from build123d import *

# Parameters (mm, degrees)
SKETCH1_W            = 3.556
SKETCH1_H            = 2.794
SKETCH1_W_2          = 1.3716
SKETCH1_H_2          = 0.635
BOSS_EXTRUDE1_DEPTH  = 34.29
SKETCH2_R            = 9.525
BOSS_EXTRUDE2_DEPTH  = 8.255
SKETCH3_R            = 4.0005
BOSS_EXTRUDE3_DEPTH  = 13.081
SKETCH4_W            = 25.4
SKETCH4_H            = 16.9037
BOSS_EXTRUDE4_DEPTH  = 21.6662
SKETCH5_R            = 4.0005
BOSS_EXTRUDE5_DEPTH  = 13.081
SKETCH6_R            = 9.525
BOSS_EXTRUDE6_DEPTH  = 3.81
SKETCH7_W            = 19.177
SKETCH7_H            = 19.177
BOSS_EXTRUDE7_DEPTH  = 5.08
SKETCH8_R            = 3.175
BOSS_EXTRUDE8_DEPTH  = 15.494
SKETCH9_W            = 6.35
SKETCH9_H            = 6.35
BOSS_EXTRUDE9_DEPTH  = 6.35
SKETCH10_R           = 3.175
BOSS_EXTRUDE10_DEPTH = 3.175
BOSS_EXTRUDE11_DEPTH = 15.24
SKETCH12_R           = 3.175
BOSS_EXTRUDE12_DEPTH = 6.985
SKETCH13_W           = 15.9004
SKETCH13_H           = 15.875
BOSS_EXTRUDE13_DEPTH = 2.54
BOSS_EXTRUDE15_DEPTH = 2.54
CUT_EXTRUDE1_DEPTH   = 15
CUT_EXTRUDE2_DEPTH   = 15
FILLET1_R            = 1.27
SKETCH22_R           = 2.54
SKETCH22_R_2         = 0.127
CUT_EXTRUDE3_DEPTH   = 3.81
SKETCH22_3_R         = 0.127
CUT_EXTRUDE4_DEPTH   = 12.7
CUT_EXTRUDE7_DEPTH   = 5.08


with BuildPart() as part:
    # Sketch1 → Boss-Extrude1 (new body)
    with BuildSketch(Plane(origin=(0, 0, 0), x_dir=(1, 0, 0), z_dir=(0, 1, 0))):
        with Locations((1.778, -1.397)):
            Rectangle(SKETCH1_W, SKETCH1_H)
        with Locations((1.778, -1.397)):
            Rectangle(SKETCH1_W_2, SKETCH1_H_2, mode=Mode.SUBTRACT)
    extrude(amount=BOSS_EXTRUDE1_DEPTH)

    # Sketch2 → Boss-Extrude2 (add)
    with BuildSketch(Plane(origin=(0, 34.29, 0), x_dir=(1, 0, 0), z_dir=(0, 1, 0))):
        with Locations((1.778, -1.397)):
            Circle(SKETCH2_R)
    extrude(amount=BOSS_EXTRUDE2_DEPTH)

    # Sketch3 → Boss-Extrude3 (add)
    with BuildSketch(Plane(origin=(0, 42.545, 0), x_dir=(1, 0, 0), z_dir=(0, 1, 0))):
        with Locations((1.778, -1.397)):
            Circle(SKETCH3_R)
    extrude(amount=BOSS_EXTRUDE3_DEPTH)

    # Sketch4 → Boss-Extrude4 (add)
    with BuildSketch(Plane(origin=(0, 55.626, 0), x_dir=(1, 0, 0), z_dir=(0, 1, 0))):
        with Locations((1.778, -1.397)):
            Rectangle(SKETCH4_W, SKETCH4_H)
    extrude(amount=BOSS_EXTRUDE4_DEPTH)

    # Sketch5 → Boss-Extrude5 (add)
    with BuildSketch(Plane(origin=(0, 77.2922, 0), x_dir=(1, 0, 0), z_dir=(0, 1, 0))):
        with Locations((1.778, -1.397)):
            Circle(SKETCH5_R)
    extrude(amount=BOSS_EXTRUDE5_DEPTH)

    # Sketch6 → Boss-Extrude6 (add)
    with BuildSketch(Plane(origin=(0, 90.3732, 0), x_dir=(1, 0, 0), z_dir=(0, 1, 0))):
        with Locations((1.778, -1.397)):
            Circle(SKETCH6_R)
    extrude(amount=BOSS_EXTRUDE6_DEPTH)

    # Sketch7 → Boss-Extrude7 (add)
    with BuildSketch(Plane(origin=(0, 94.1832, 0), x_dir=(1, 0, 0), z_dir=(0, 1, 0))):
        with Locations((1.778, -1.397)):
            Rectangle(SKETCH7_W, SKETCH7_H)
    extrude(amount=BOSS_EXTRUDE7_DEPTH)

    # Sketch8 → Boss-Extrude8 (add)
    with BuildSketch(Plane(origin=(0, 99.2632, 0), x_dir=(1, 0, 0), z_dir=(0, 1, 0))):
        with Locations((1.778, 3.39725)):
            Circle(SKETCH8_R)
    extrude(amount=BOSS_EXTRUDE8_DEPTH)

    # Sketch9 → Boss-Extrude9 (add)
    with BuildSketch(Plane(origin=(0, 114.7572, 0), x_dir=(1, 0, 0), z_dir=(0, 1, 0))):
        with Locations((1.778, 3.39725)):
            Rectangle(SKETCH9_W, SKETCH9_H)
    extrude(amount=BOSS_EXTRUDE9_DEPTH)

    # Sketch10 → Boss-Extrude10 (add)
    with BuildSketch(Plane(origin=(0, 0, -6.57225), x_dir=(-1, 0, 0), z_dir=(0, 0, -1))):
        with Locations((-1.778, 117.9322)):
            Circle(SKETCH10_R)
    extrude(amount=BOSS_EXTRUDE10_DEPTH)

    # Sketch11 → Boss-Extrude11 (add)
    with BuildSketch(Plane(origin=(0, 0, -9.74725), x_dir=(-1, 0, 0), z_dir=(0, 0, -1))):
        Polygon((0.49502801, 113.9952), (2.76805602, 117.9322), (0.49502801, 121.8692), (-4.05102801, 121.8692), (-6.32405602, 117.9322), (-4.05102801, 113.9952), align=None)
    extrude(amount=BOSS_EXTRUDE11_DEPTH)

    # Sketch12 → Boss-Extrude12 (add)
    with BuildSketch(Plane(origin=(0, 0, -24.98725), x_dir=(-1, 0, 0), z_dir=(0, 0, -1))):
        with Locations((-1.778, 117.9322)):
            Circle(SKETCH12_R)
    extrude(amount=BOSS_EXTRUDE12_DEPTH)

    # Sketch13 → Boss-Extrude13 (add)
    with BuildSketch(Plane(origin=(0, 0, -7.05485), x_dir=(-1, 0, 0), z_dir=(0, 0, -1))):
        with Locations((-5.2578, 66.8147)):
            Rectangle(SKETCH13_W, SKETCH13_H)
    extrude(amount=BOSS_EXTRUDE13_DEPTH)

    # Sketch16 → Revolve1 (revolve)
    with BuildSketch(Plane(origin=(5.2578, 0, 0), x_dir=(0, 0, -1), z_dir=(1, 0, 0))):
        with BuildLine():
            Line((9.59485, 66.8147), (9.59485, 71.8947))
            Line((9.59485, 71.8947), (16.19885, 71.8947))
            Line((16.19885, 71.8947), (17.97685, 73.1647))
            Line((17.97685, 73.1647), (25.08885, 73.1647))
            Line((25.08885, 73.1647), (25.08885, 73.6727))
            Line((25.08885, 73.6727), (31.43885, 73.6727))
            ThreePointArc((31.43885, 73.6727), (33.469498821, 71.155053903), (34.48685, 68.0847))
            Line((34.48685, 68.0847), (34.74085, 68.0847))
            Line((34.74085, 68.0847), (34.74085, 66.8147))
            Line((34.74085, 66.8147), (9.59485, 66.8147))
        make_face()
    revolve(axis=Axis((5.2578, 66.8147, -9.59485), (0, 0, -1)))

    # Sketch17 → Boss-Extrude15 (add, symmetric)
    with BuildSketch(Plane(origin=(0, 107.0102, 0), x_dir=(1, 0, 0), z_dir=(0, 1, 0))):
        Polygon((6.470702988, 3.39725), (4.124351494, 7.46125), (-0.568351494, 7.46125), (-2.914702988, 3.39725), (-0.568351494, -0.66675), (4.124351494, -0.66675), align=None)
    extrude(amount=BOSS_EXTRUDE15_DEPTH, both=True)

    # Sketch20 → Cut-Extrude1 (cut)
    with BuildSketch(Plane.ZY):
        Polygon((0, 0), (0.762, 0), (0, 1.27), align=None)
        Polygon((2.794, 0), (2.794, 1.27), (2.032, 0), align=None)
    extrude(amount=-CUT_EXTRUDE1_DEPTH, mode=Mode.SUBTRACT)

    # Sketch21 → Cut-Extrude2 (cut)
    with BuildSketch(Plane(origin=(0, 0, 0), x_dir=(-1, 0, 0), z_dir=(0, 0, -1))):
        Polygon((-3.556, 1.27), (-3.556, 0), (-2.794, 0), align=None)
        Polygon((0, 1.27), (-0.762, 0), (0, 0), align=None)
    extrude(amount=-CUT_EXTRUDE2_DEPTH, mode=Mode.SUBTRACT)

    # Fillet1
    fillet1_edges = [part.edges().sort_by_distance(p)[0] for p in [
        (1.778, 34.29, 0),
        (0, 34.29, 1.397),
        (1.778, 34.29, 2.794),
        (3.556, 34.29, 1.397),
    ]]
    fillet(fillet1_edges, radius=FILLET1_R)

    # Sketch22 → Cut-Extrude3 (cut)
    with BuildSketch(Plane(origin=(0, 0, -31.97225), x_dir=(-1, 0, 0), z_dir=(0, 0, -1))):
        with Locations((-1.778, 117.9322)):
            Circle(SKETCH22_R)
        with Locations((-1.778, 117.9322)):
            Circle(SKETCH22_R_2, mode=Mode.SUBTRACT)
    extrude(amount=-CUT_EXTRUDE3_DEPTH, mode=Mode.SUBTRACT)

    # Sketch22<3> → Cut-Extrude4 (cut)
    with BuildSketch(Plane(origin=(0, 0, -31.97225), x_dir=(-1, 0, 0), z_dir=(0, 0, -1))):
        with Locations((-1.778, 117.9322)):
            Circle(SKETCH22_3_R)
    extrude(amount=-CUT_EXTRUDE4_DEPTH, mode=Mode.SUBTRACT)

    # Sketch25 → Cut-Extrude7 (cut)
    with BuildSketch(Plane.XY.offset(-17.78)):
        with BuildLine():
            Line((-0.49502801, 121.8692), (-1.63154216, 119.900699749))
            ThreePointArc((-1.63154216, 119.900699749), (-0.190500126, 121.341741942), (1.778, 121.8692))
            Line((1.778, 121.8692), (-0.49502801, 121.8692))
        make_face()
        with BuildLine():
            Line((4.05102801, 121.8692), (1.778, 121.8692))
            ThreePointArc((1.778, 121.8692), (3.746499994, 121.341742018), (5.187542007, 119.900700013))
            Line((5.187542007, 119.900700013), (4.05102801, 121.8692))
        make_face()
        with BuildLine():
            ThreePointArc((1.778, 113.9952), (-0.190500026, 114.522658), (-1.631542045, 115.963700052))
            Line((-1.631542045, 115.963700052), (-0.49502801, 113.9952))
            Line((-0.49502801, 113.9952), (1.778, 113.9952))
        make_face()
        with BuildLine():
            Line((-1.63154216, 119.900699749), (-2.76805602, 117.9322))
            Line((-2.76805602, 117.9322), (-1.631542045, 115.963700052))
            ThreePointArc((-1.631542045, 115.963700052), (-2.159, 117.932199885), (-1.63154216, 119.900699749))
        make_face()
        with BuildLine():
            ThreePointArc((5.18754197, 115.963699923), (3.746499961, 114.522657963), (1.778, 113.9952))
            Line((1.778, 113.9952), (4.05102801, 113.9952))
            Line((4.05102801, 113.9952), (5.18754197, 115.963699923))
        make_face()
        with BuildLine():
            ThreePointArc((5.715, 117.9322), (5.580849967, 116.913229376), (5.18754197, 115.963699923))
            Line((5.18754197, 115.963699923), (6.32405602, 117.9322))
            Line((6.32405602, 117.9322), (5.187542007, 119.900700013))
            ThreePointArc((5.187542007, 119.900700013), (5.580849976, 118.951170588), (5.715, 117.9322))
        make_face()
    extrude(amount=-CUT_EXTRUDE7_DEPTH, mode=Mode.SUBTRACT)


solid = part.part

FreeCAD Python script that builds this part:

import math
import FreeCAD as App
import Part
import Sketcher
Q = App.Units.Quantity


def edges_at(feature, points):
    """Names of the edges that pass closest to the given points."""
    edges = feature.Shape.Edges
    near = lambda p: min(range(len(edges)), key=lambda i: edges[i].distToShape(Part.Vertex(*p))[0])
    return sorted({f"Edge{near(p) + 1}" for p in points})

doc = App.newDocument("Part")
body = doc.addObject("PartDesign::Body", "Body")

sketch1 = body.newObject("Sketcher::SketchObject", "Sketch")
sketch1.AttachmentSupport = (doc.getObject("XZ_Plane"), [""])
sketch1.MapMode = "FlatFace"
sketch1.addGeometry(Part.LineSegment(App.Vector(0, 0, 0), App.Vector(0, 2.794, 0)), False)
sketch1.addGeometry(Part.LineSegment(App.Vector(0, 2.794, 0), App.Vector(3.556, 2.794, 0)), False)
sketch1.addGeometry(Part.LineSegment(App.Vector(3.556, 2.794, 0), App.Vector(3.556, 0, 0)), False)
sketch1.addGeometry(Part.LineSegment(App.Vector(3.556, 0, 0), App.Vector(0, 0, 0)), False)
sketch1.addGeometry(Part.LineSegment(App.Vector(2.4638, 1.7145, 0), App.Vector(1.0922, 1.7145, 0)), False)
sketch1.addGeometry(Part.LineSegment(App.Vector(1.0922, 1.7145, 0), App.Vector(1.0922, 1.0795, 0)), False)
sketch1.addGeometry(Part.LineSegment(App.Vector(1.0922, 1.0795, 0), App.Vector(2.4638, 1.0795, 0)), False)
sketch1.addGeometry(Part.LineSegment(App.Vector(2.4638, 1.0795, 0), App.Vector(2.4638, 1.7145, 0)), False)
sketch1.addConstraint(Sketcher.Constraint("Coincident", 0, 2, 1, 1))
sketch1.addConstraint(Sketcher.Constraint("Coincident", 1, 2, 2, 1))
sketch1.addConstraint(Sketcher.Constraint("Coincident", 2, 2, 3, 1))
sketch1.addConstraint(Sketcher.Constraint("Coincident", 3, 2, 0, 1))
sketch1.addConstraint(Sketcher.Constraint("Coincident", 4, 2, 5, 1))
sketch1.addConstraint(Sketcher.Constraint("Coincident", 5, 2, 6, 1))
sketch1.addConstraint(Sketcher.Constraint("Coincident", 6, 2, 7, 1))
sketch1.addConstraint(Sketcher.Constraint("Coincident", 7, 2, 4, 1))
sketch1.addConstraint(Sketcher.Constraint("Vertical", 0))
sketch1.addConstraint(Sketcher.Constraint("Horizontal", 1))
sketch1.addConstraint(Sketcher.Constraint("Vertical", 2))
sketch1.addConstraint(Sketcher.Constraint("Horizontal", 3))
sketch1.addConstraint(Sketcher.Constraint("Horizontal", 4))
sketch1.addConstraint(Sketcher.Constraint("Vertical", 5))
sketch1.addConstraint(Sketcher.Constraint("Horizontal", 6))
sketch1.addConstraint(Sketcher.Constraint("Vertical", 7))
sketch1.addConstraint(Sketcher.Constraint("Coincident", 3, 2, -1, 1))
sketch1.addConstraint(Sketcher.Constraint("DistanceX", 1, 1, 1, 2, Q("0.14 in")))
sketch1.addConstraint(Sketcher.Constraint("DistanceY", 0, 1, 0, 2, Q("0.11 in")))
sketch1.addConstraint(Sketcher.Constraint("DistanceX", 4, 2, 4, 1, Q("0.054 in")))
sketch1.addConstraint(Sketcher.Constraint("DistanceY", 5, 2, 5, 1, Q("0.025 in")))
sketch1.addConstraint(Sketcher.Constraint("DistanceX", -1, 1, 4, 2, Q("0.043 in")))
sketch1.addConstraint(Sketcher.Constraint("DistanceY", -1, 1, 4, 2, Q("0.0675 in")))
pad1 = body.newObject("PartDesign::Pad", "Pad")
pad1.Profile = sketch1
pad1.Length = Q("1.35 in")
pad1.Reversed = True

sketch2 = body.newObject("Sketcher::SketchObject", "Sketch001")
sketch2.AttachmentSupport = (doc.getObject("XZ_Plane"), [""])
sketch2.MapMode = "FlatFace"
sketch2.AttachmentOffset = App.Placement(App.Vector(0, 0, -1.35 * 25.4), App.Rotation())
sketch2.addGeometry(Part.Circle(App.Vector(1.778, 1.397, 0), App.Vector(0, 0, 1), 9.525), False)
sketch2.addConstraint(Sketcher.Constraint("Diameter", 0, Q("0.75 in")))
sketch2.addConstraint(Sketcher.Constraint("DistanceX", -1, 1, 0, 3, Q("0.07 in")))
sketch2.addConstraint(Sketcher.Constraint("DistanceY", -1, 1, 0, 3, Q("0.055 in")))
pad2 = body.newObject("PartDesign::Pad", "Pad001")
pad2.Profile = sketch2
pad2.Length = Q("0.325 in")
pad2.Reversed = True

sketch3 = body.newObject("Sketcher::SketchObject", "Sketch002")
sketch3.AttachmentSupport = (doc.getObject("XZ_Plane"), [""])
sketch3.MapMode = "FlatFace"
sketch3.AttachmentOffset = App.Placement(App.Vector(0, 0, -1.675 * 25.4), App.Rotation())
sketch3.addGeometry(Part.Circle(App.Vector(1.778, 1.397, 0), App.Vector(0, 0, 1), 4.0005), False)
sketch3.addConstraint(Sketcher.Constraint("Diameter", 0, Q("0.315 in")))
sketch3.addConstraint(Sketcher.Constraint("DistanceX", -1, 1, 0, 3, Q("0.07 in")))
sketch3.addConstraint(Sketcher.Constraint("DistanceY", -1, 1, 0, 3, Q("0.055 in")))
pad3 = body.newObject("PartDesign::Pad", "Pad002")
pad3.Profile = sketch3
pad3.Length = Q("0.515 in")
pad3.Reversed = True

sketch4 = body.newObject("Sketcher::SketchObject", "Sketch003")
sketch4.AttachmentSupport = (doc.getObject("XZ_Plane"), [""])
sketch4.MapMode = "FlatFace"
sketch4.AttachmentOffset = App.Placement(App.Vector(0, 0, -2.19 * 25.4), App.Rotation())
sketch4.addGeometry(Part.LineSegment(App.Vector(-10.922, -7.05485, 0), App.Vector(-10.922, 9.84885, 0)), False)
sketch4.addGeometry(Part.LineSegment(App.Vector(-10.922, 9.84885, 0), App.Vector(14.478, 9.84885, 0)), False)
sketch4.addGeometry(Part.LineSegment(App.Vector(14.478, 9.84885, 0), App.Vector(14.478, -7.05485, 0)), False)
sketch4.addGeometry(Part.LineSegment(App.Vector(14.478, -7.05485, 0), App.Vector(-10.922, -7.05485, 0)), False)
sketch4.addConstraint(Sketcher.Constraint("Coincident", 0, 2, 1, 1))
sketch4.addConstraint(Sketcher.Constraint("Coincident", 1, 2, 2, 1))
sketch4.addConstraint(Sketcher.Constraint("Coincident", 2, 2, 3, 1))
sketch4.addConstraint(Sketcher.Constraint("Coincident", 3, 2, 0, 1))
sketch4.addConstraint(Sketcher.Constraint("Vertical", 0))
sketch4.addConstraint(Sketcher.Constraint("Horizontal", 1))
sketch4.addConstraint(Sketcher.Constraint("Vertical", 2))
sketch4.addConstraint(Sketcher.Constraint("Horizontal", 3))
sketch4.addConstraint(Sketcher.Constraint("DistanceX", 1, 1, 1, 2, Q("1 in")))
sketch4.addConstraint(Sketcher.Constraint("DistanceX", 0, 2, -1, 1, Q("0.43 in")))
sketch4.addConstraint(Sketcher.Constraint("DistanceY", 0, 1, 0, 2, Q("0.6655 in")))
sketch4.addConstraint(Sketcher.Constraint("DistanceY", -1, 1, 0, 2, Q("9.84885 mm")))
pad4 = body.newObject("PartDesign::Pad", "Pad003")
pad4.Profile = sketch4
pad4.Length = Q("0.853 in")
pad4.Reversed = True

sketch5 = body.newObject("Sketcher::SketchObject", "Sketch004")
sketch5.AttachmentSupport = (doc.getObject("XZ_Plane"), [""])
sketch5.MapMode = "FlatFace"
sketch5.AttachmentOffset = App.Placement(App.Vector(0, 0, -3.043 * 25.4), App.Rotation())
sketch5.addGeometry(Part.Circle(App.Vector(1.778, 1.397, 0), App.Vector(0, 0, 1), 4.0005), False)
sketch5.addConstraint(Sketcher.Constraint("Diameter", 0, Q("0.315 in")))
sketch5.addConstraint(Sketcher.Constraint("DistanceX", -1, 1, 0, 3, Q("0.07 in")))
sketch5.addConstraint(Sketcher.Constraint("DistanceY", -1, 1, 0, 3, Q("0.055 in")))
pad5 = body.newObject("PartDesign::Pad", "Pad004")
pad5.Profile = sketch5
pad5.Length = Q("0.515 in")
pad5.Reversed = True

sketch6 = body.newObject("Sketcher::SketchObject", "Sketch005")
sketch6.AttachmentSupport = (doc.getObject("XZ_Plane"), [""])
sketch6.MapMode = "FlatFace"
sketch6.AttachmentOffset = App.Placement(App.Vector(0, 0, -3.558 * 25.4), App.Rotation())
sketch6.addGeometry(Part.Circle(App.Vector(1.778, 1.397, 0), App.Vector(0, 0, 1), 9.525), False)
sketch6.addConstraint(Sketcher.Constraint("Diameter", 0, Q("0.75 in")))
sketch6.addConstraint(Sketcher.Constraint("DistanceX", -1, 1, 0, 3, Q("0.07 in")))
sketch6.addConstraint(Sketcher.Constraint("DistanceY", -1, 1, 0, 3, Q("0.055 in")))
pad6 = body.newObject("PartDesign::Pad", "Pad005")
pad6.Profile = sketch6
pad6.Length = Q("0.15 in")
pad6.Reversed = True

sketch7 = body.newObject("Sketcher::SketchObject", "Sketch006")
sketch7.AttachmentSupport = (doc.getObject("XZ_Plane"), [""])
sketch7.MapMode = "FlatFace"
sketch7.AttachmentOffset = App.Placement(App.Vector(0, 0, -3.708 * 25.4), App.Rotation())
sketch7.addGeometry(Part.LineSegment(App.Vector(-7.8105, -8.1915, 0), App.Vector(-7.8105, 10.9855, 0)), False)
sketch7.addGeometry(Part.LineSegment(App.Vector(-7.8105, 10.9855, 0), App.Vector(11.3665, 10.9855, 0)), False)
sketch7.addGeometry(Part.LineSegment(App.Vector(11.3665, 10.9855, 0), App.Vector(11.3665, -8.1915, 0)), False)
sketch7.addGeometry(Part.LineSegment(App.Vector(11.3665, -8.1915, 0), App.Vector(-7.8105, -8.1915, 0)), False)
sketch7.addConstraint(Sketcher.Constraint("Coincident", 0, 2, 1, 1))
sketch7.addConstraint(Sketcher.Constraint("Coincident", 1, 2, 2, 1))
sketch7.addConstraint(Sketcher.Constraint("Coincident", 2, 2, 3, 1))
sketch7.addConstraint(Sketcher.Constraint("Coincident", 3, 2, 0, 1))
sketch7.addConstraint(Sketcher.Constraint("Vertical", 0))
sketch7.addConstraint(Sketcher.Constraint("Horizontal", 1))
sketch7.addConstraint(Sketcher.Constraint("Vertical", 2))
sketch7.addConstraint(Sketcher.Constraint("Horizontal", 3))
sketch7.addConstraint(Sketcher.Constraint("Equal", 3, 0))
sketch7.addConstraint(Sketcher.Constraint("DistanceX", 1, 1, 1, 2, Q("0.755 in")))
sketch7.addConstraint(Sketcher.Constraint("DistanceX", 0, 2, -1, 1, Q("0.3075 in")))
sketch7.addConstraint(Sketcher.Constraint("DistanceY", -1, 1, 0, 2, Q("0.4325 in")))
pad7 = body.newObject("PartDesign::Pad", "Pad006")
pad7.Profile = sketch7
pad7.Length = Q("0.2 in")
pad7.Reversed = True

sketch8 = body.newObject("Sketcher::SketchObject", "Sketch007")
sketch8.AttachmentSupport = (doc.getObject("XZ_Plane"), [""])
sketch8.MapMode = "FlatFace"
sketch8.AttachmentOffset = App.Placement(App.Vector(0, 0, -3.908 * 25.4), App.Rotation())
sketch8.addGeometry(Part.Circle(App.Vector(1.778, -3.39725, 0), App.Vector(0, 0, 1), 3.175), False)
sketch8.addConstraint(Sketcher.Constraint("Diameter", 0, Q("0.25 in")))
sketch8.addConstraint(Sketcher.Constraint("DistanceX", -1, 1, 0, 3, Q("0.07 in")))
sketch8.addConstraint(Sketcher.Constraint("DistanceY", 0, 3, -1, 1, Q("3.39725 mm")))
pad8 = body.newObject("PartDesign::Pad", "Pad007")
pad8.Profile = sketch8
pad8.Length = Q("0.61 in")
pad8.Reversed = True

sketch9 = body.newObject("Sketcher::SketchObject", "Sketch008")
sketch9.AttachmentSupport = (doc.getObject("XZ_Plane"), [""])
sketch9.MapMode = "FlatFace"
sketch9.AttachmentOffset = App.Placement(App.Vector(0, 0, -4.518 * 25.4), App.Rotation())
sketch9.addGeometry(Part.LineSegment(App.Vector(-1.397, -6.57225, 0), App.Vector(-1.397, -0.22225, 0)), False)
sketch9.addGeometry(Part.LineSegment(App.Vector(-1.397, -0.22225, 0), App.Vector(4.953, -0.22225, 0)), False)
sketch9.addGeometry(Part.LineSegment(App.Vector(4.953, -0.22225, 0), App.Vector(4.953, -6.57225, 0)), False)
sketch9.addGeometry(Part.LineSegment(App.Vector(4.953, -6.57225, 0), App.Vector(-1.397, -6.57225, 0)), False)
sketch9.addConstraint(Sketcher.Constraint("Coincident", 0, 2, 1, 1))
sketch9.addConstraint(Sketcher.Constraint("Coincident", 1, 2, 2, 1))
sketch9.addConstraint(Sketcher.Constraint("Coincident", 2, 2, 3, 1))
sketch9.addConstraint(Sketcher.Constraint("Coincident", 3, 2, 0, 1))
sketch9.addConstraint(Sketcher.Constraint("Vertical", 0))
sketch9.addConstraint(Sketcher.Constraint("Horizontal", 1))
sketch9.addConstraint(Sketcher.Constraint("Vertical", 2))
sketch9.addConstraint(Sketcher.Constraint("Horizontal", 3))
sketch9.addConstraint(Sketcher.Constraint("Equal", 3, 0))
sketch9.addConstraint(Sketcher.Constraint("DistanceX", 1, 1, 1, 2, Q("0.25 in")))
sketch9.addConstraint(Sketcher.Constraint("DistanceX", 0, 2, -1, 1, Q("0.055 in")))
sketch9.addConstraint(Sketcher.Constraint("DistanceY", 0, 2, -1, 1, Q("0.22225 mm")))
pad9 = body.newObject("PartDesign::Pad", "Pad008")
pad9.Profile = sketch9
pad9.Length = Q("0.25 in")
pad9.Reversed = True

sketch10 = body.newObject("Sketcher::SketchObject", "Sketch009")
sketch10.AttachmentSupport = (doc.getObject("XY_Plane"), [""])
sketch10.MapMode = "FlatFace"
sketch10.AttachmentOffset = App.Placement(App.Vector(0, 0, -6.57225), App.Rotation())
sketch10.addGeometry(Part.Circle(App.Vector(1.778, 117.9322, 0), App.Vector(0, 0, 1), 3.175), False)
sketch10.addConstraint(Sketcher.Constraint("Diameter", 0, Q("0.25 in")))
sketch10.addConstraint(Sketcher.Constraint("DistanceX", -1, 1, 0, 3, Q("0.07 in")))
sketch10.addConstraint(Sketcher.Constraint("DistanceY", -1, 1, 0, 3, Q("4.643 in")))
pad10 = body.newObject("PartDesign::Pad", "Pad009")
pad10.Profile = sketch10
pad10.Length = Q("0.125 in")
pad10.Reversed = True

sketch11 = body.newObject("Sketcher::SketchObject", "Sketch010")
sketch11.AttachmentSupport = (doc.getObject("XY_Plane"), [""])
sketch11.MapMode = "FlatFace"
sketch11.AttachmentOffset = App.Placement(App.Vector(0, 0, -9.74725), App.Rotation())
sketch11.addGeometry(Part.LineSegment(App.Vector(-0.495028, 113.9952, 0), App.Vector(-2.768056, 117.9322, 0)), False)
sketch11.addGeometry(Part.LineSegment(App.Vector(-2.768056, 117.9322, 0), App.Vector(-0.495028, 121.8692, 0)), False)
sketch11.addGeometry(Part.LineSegment(App.Vector(-0.495028, 121.8692, 0), App.Vector(4.051028, 121.8692, 0)), False)
sketch11.addGeometry(Part.LineSegment(App.Vector(4.051028, 121.8692, 0), App.Vector(6.324056, 117.9322, 0)), False)
sketch11.addGeometry(Part.LineSegment(App.Vector(6.324056, 117.9322, 0), App.Vector(4.051028, 113.9952, 0)), False)
sketch11.addGeometry(Part.LineSegment(App.Vector(4.051028, 113.9952, 0), App.Vector(-0.495028, 113.9952, 0)), False)
sketch11.addConstraint(Sketcher.Constraint("Coincident", 0, 2, 1, 1))
sketch11.addConstraint(Sketcher.Constraint("Coincident", 1, 2, 2, 1))
sketch11.addConstraint(Sketcher.Constraint("Coincident", 2, 2, 3, 1))
sketch11.addConstraint(Sketcher.Constraint("Coincident", 3, 2, 4, 1))
sketch11.addConstraint(Sketcher.Constraint("Coincident", 4, 2, 5, 1))
sketch11.addConstraint(Sketcher.Constraint("Coincident", 5, 2, 0, 1))
sketch11.addConstraint(Sketcher.Constraint("Horizontal", 2))
sketch11.addConstraint(Sketcher.Constraint("Horizontal", 5))
sketch11.addConstraint(Sketcher.Constraint("Parallel", 0, 3))
sketch11.addConstraint(Sketcher.Constraint("Parallel", 1, 4))
sketch11.addConstraint(Sketcher.Constraint("Horizontal", 0, 2, 3, 2))
sketch11.addConstraint(Sketcher.Constraint("Vertical", 2, 2, 4, 2))
sketch11.addConstraint(Sketcher.Constraint("Vertical", 1, 2, 5, 2))
sketch11.addConstraint(Sketcher.Constraint("Angle", 0, Q("120 deg")))
sketch11.addConstraint(Sketcher.Constraint("DistanceY", 4, 2, 2, 2, Q("0.31 in")))
sketch11.addConstraint(Sketcher.Constraint("DistanceY", -1, 1, 0, 2, Q("4.643 in")))
sketch11.addConstraint(Sketcher.Constraint("DistanceX", 2, 1, 2, 2, Q("4.546056 mm")))
sketch11.addConstraint(Sketcher.Constraint("DistanceX", 1, 2, -1, 1, Q("0.495028 mm")))
pad11 = body.newObject("PartDesign::Pad", "Pad010")
pad11.Profile = sketch11
pad11.Length = Q("0.6 in")
pad11.Reversed = True

sketch12 = body.newObject("Sketcher::SketchObject", "Sketch011")
sketch12.AttachmentSupport = (doc.getObject("XY_Plane"), [""])
sketch12.MapMode = "FlatFace"
sketch12.AttachmentOffset = App.Placement(App.Vector(0, 0, -24.98725), App.Rotation())
sketch12.addGeometry(Part.Circle(App.Vector(1.778, 117.9322, 0), App.Vector(0, 0, 1), 3.175), False)
sketch12.addConstraint(Sketcher.Constraint("Diameter", 0, Q("0.25 in")))
sketch12.addConstraint(Sketcher.Constraint("DistanceX", -1, 1, 0, 3, Q("0.07 in")))
sketch12.addConstraint(Sketcher.Constraint("DistanceY", -1, 1, 0, 3, Q("4.643 in")))
pad12 = body.newObject("PartDesign::Pad", "Pad011")
pad12.Profile = sketch12
pad12.Length = Q("0.275 in")
pad12.Reversed = True

sketch13 = body.newObject("Sketcher::SketchObject", "Sketch012")
sketch13.AttachmentSupport = (doc.getObject("XY_Plane"), [""])
sketch13.MapMode = "FlatFace"
sketch13.AttachmentOffset = App.Placement(App.Vector(0, 0, -7.05485), App.Rotation())
sketch13.addGeometry(Part.LineSegment(App.Vector(13.208, 74.7522, 0), App.Vector(13.208, 58.8772, 0)), False)
sketch13.addGeometry(Part.LineSegment(App.Vector(13.208, 58.8772, 0), App.Vector(-2.6924, 58.8772, 0)), False)
sketch13.addGeometry(Part.LineSegment(App.Vector(-2.6924, 58.8772, 0), App.Vector(-2.6924, 74.7522, 0)), False)
sketch13.addGeometry(Part.LineSegment(App.Vector(-2.6924, 74.7522, 0), App.Vector(13.208, 74.7522, 0)), False)
sketch13.addConstraint(Sketcher.Constraint("Coincident", 0, 2, 1, 1))
sketch13.addConstraint(Sketcher.Constraint("Coincident", 1, 2, 2, 1))
sketch13.addConstraint(Sketcher.Constraint("Coincident", 2, 2, 3, 1))
sketch13.addConstraint(Sketcher.Constraint("Coincident", 3, 2, 0, 1))
sketch13.addConstraint(Sketcher.Constraint("Vertical", 0))
sketch13.addConstraint(Sketcher.Constraint("Horizontal", 1))
sketch13.addConstraint(Sketcher.Constraint("Vertical", 2))
sketch13.addConstraint(Sketcher.Constraint("Horizontal", 3))
sketch13.addConstraint(Sketcher.Constraint("DistanceX", 1, 2, 1, 1, Q("0.626 in")))
sketch13.addConstraint(Sketcher.Constraint("DistanceY", 0, 2, 0, 1, Q("0.625 in")))
sketch13.addConstraint(Sketcher.Constraint("DistanceX", -1, 1, 0, 2, Q("0.52 in")))
sketch13.addConstraint(Sketcher.Constraint("DistanceY", -1, 1, 0, 2, Q("2.318 in")))
pad13 = body.newObject("PartDesign::Pad", "Pad012")
pad13.Profile = sketch13
pad13.Length = Q("0.1 in")
pad13.Reversed = True

sketch14 = body.newObject("Sketcher::SketchObject", "Sketch013")
sketch14.AttachmentSupport = (doc.getObject("YZ_Plane"), [""])
sketch14.MapMode = "FlatFace"
sketch14.AttachmentOffset = App.Placement(App.Vector(0, 0, 0.207 * 25.4), App.Rotation())
sketch14.addGeometry(Part.LineSegment(App.Vector(71.8947, -9.59485, 0), App.Vector(66.8147, -9.59485, 0)), False)
sketch14.addGeometry(Part.LineSegment(App.Vector(66.8147, -9.59485, 0), App.Vector(66.8147, -34.74085, 0)), False)
sketch14.addGeometry(Part.LineSegment(App.Vector(66.8147, -34.74085, 0), App.Vector(68.0847, -34.74085, 0)), False)
sketch14.addGeometry(Part.LineSegment(App.Vector(68.0847, -34.74085, 0), App.Vector(68.0847, -34.48685, 0)), False)
sketch14.addGeometry(Part.ArcOfCircle(Part.Circle(App.Vector(66.8147, -25.512183, 0), App.Vector(0, 0, 1), 9.06408), math.radians(-81.945586), math.radians(-40.833495)), False)
sketch14.addGeometry(Part.LineSegment(App.Vector(73.6727, -31.43885, 0), App.Vector(73.6727, -25.08885, 0)), False)
sketch14.addGeometry(Part.LineSegment(App.Vector(73.6727, -25.08885, 0), App.Vector(73.1647, -25.08885, 0)), False)
sketch14.addGeometry(Part.LineSegment(App.Vector(73.1647, -25.08885, 0), App.Vector(73.1647, -17.97685, 0)), False)
sketch14.addGeometry(Part.LineSegment(App.Vector(73.1647, -17.97685, 0), App.Vector(71.8947, -16.19885, 0)), False)
sketch14.addGeometry(Part.LineSegment(App.Vector(71.8947, -16.19885, 0), App.Vector(71.8947, -9.59485, 0)), False)
sketch14.addGeometry(Part.LineSegment(App.Vector(66.8147, -9.59485, 0), App.Vector(66.8147, -34.74085, 0)), True)
sketch14.addConstraint(Sketcher.Constraint("Coincident", 0, 2, 1, 1))
sketch14.addConstraint(Sketcher.Constraint("Coincident", 1, 2, 2, 1))
sketch14.addConstraint(Sketcher.Constraint("Coincident", 2, 2, 3, 1))
sketch14.addConstraint(Sketcher.Constraint("Coincident", 3, 2, 4, 1))
sketch14.addConstraint(Sketcher.Constraint("Coincident", 4, 2, 5, 1))
sketch14.addConstraint(Sketcher.Constraint("Coincident", 5, 2, 6, 1))
sketch14.addConstraint(Sketcher.Constraint("Coincident", 6, 2, 7, 1))
sketch14.addConstraint(Sketcher.Constraint("Coincident", 7, 2, 8, 1))
sketch14.addConstraint(Sketcher.Constraint("Coincident", 8, 2, 9, 1))
sketch14.addConstraint(Sketcher.Constraint("Coincident", 9, 2, 0, 1))
sketch14.addConstraint(Sketcher.Constraint("Horizontal", 0))
sketch14.addConstraint(Sketcher.Constraint("Vertical", 1))
sketch14.addConstraint(Sketcher.Constraint("Horizontal", 2))
sketch14.addConstraint(Sketcher.Constraint("Vertical", 3))
sketch14.addConstraint(Sketcher.Constraint("Vertical", 5))
sketch14.addConstraint(Sketcher.Constraint("Horizontal", 6))
sketch14.addConstraint(Sketcher.Constraint("Vertical", 7))
sketch14.addConstraint(Sketcher.Constraint("Vertical", 9))
sketch14.addConstraint(Sketcher.Constraint("Vertical", 10))
sketch14.addConstraint(Sketcher.Constraint("Coincident", 10, 1, 0, 2))
sketch14.addConstraint(Sketcher.Constraint("Horizontal", 2, 2, 10, 2))
sketch14.addConstraint(Sketcher.Constraint("Vertical", 4, 3, 0, 2))
sketch14.addConstraint(Sketcher.Constraint("DistanceX", 0, 2, 0, 1, Q("0.2 in")))
sketch14.addConstraint(Sketcher.Constraint("DistanceX", 2, 1, 2, 2, Q("0.05 in")))
sketch14.addConstraint(Sketcher.Constraint("DistanceX", 6, 2, 6, 1, Q("0.02 in")))
sketch14.addConstraint(Sketcher.Constraint("DistanceY", 1, 2, 1, 1, Q("0.99 in")))
sketch14.addConstraint(Sketcher.Constraint("DistanceY", 3, 1, 3, 2, Q("0.01 in")))
sketch14.addConstraint(Sketcher.Constraint("DistanceY", 5, 1, 5, 2, Q("0.25 in")))
sketch14.addConstraint(Sketcher.Constraint("DistanceY", 7, 1, 7, 2, Q("0.28 in")))
sketch14.addConstraint(Sketcher.Constraint("DistanceY", 9, 1, 9, 2, Q("0.26 in")))
sketch14.addConstraint(Sketcher.Constraint("DistanceX", 3, 2, 6, 2, Q("0.2 in")))
sketch14.addConstraint(Sketcher.Constraint("DistanceY", 3, 2, 4, 2, Q("0.12 in")))
sketch14.addConstraint(Sketcher.Constraint("DistanceX", -1, 1, 4, 3, Q("2.6305 in")))
sketch14.addConstraint(Sketcher.Constraint("DistanceY", 0, 2, -1, 1, Q("9.59485 mm")))
revolution = body.newObject("PartDesign::Revolution", "Revolution")
revolution.Profile = sketch14
revolution.ReferenceAxis = (sketch14, ["Axis0"])
revolution.Angle = 360

sketch15 = body.newObject("Sketcher::SketchObject", "Sketch014")
sketch15.AttachmentSupport = (doc.getObject("XZ_Plane"), [""])
sketch15.MapMode = "FlatFace"
sketch15.AttachmentOffset = App.Placement(App.Vector(0, 0, -4.213 * 25.4), App.Rotation())
sketch15.addGeometry(Part.LineSegment(App.Vector(6.470703, -3.39725, 0), App.Vector(4.124351, -7.46125, 0)), False)
sketch15.addGeometry(Part.LineSegment(App.Vector(4.124351, -7.46125, 0), App.Vector(-0.568351, -7.46125, 0)), False)
sketch15.addGeometry(Part.LineSegment(App.Vector(-0.568351, -7.46125, 0), App.Vector(-2.914703, -3.39725, 0)), False)
sketch15.addGeometry(Part.LineSegment(App.Vector(-2.914703, -3.39725, 0), App.Vector(-0.568351, 0.66675, 0)), False)
sketch15.addGeometry(Part.LineSegment(App.Vector(-0.568351, 0.66675, 0), App.Vector(4.124351, 0.66675, 0)), False)
sketch15.addGeometry(Part.LineSegment(App.Vector(4.124351, 0.66675, 0), App.Vector(6.470703, -3.39725, 0)), False)
sketch15.addConstraint(Sketcher.Constraint("Coincident", 0, 2, 1, 1))
sketch15.addConstraint(Sketcher.Constraint("Coincident", 1, 2, 2, 1))
sketch15.addConstraint(Sketcher.Constraint("Coincident", 2, 2, 3, 1))
sketch15.addConstraint(Sketcher.Constraint("Coincident", 3, 2, 4, 1))
sketch15.addConstraint(Sketcher.Constraint("Coincident", 4, 2, 5, 1))
sketch15.addConstraint(Sketcher.Constraint("Coincident", 5, 2, 0, 1))
sketch15.addConstraint(Sketcher.Constraint("Horizontal", 1))
sketch15.addConstraint(Sketcher.Constraint("Horizontal", 4))
sketch15.addConstraint(Sketcher.Constraint("Parallel", 0, 3))
sketch15.addConstraint(Sketcher.Constraint("Parallel", 2, 5))
sketch15.addConstraint(Sketcher.Constraint("Horizontal", 2, 2, 5, 2))
sketch15.addConstraint(Sketcher.Constraint("Vertical", 1, 2, 3, 2))
sketch15.addConstraint(Sketcher.Constraint("Vertical", 0, 2, 4, 2))
sketch15.addConstraint(Sketcher.Constraint("Angle", 0, Q("-120 deg")))
sketch15.addConstraint(Sketcher.Constraint("DistanceY", 1, 2, 2, 2, Q("0.16 in")))
sketch15.addConstraint(Sketcher.Constraint("DistanceX", 1, 2, 1, 1, Q("4.692703 mm")))
sketch15.addConstraint(Sketcher.Constraint("DistanceX", -1, 1, 0, 2, Q("4.124351 mm")))
sketch15.addConstraint(Sketcher.Constraint("DistanceY", 0, 2, -1, 1, Q("7.46125 mm")))
pad14 = body.newObject("PartDesign::Pad", "Pad013")
pad14.Profile = sketch15
pad14.Length = Q("0.2 in")
pad14.Midplane = True

sketch16 = body.newObject("Sketcher::SketchObject", "Sketch015")
sketch16.AttachmentSupport = (doc.getObject("YZ_Plane"), [""])
sketch16.MapMode = "FlatFace"
sketch16.addGeometry(Part.LineSegment(App.Vector(0, 0, 0), App.Vector(0, 0.762, 0)), False)
sketch16.addGeometry(Part.LineSegment(App.Vector(0, 0.762, 0), App.Vector(1.27, 0, 0)), False)
sketch16.addGeometry(Part.LineSegment(App.Vector(1.27, 0, 0), App.Vector(0, 0, 0)), False)
sketch16.addGeometry(Part.LineSegment(App.Vector(0, 2.794, 0), App.Vector(1.27, 2.794, 0)), False)
sketch16.addGeometry(Part.LineSegment(App.Vector(1.27, 2.794, 0), App.Vector(0, 2.032, 0)), False)
sketch16.addGeometry(Part.LineSegment(App.Vector(0, 2.032, 0), App.Vector(0, 2.794, 0)), False)
sketch16.addConstraint(Sketcher.Constraint("Coincident", 0, 2, 1, 1))
sketch16.addConstraint(Sketcher.Constraint("Coincident", 1, 2, 2, 1))
sketch16.addConstraint(Sketcher.Constraint("Coincident", 2, 2, 0, 1))
sketch16.addConstraint(Sketcher.Constraint("Coincident", 3, 2, 4, 1))
sketch16.addConstraint(Sketcher.Constraint("Coincident", 4, 2, 5, 1))
sketch16.addConstraint(Sketcher.Constraint("Coincident", 5, 2, 3, 1))
sketch16.addConstraint(Sketcher.Constraint("Vertical", 0))
sketch16.addConstraint(Sketcher.Constraint("Horizontal", 2))
sketch16.addConstraint(Sketcher.Constraint("Horizontal", 3))
sketch16.addConstraint(Sketcher.Constraint("Vertical", 5))
sketch16.addConstraint(Sketcher.Constraint("Coincident", 2, 2, -1, 1))
sketch16.addConstraint(Sketcher.Constraint("PointOnObject", 4, 2, -2))
sketch16.addConstraint(Sketcher.Constraint("Vertical", 1, 2, 3, 2))
sketch16.addConstraint(Sketcher.Constraint("Equal", 0, 5))
sketch16.addConstraint(Sketcher.Constraint("DistanceX", 2, 2, 2, 1, Q("0.05 in")))
sketch16.addConstraint(Sketcher.Constraint("DistanceY", 0, 1, 0, 2, Q("0.03 in")))
sketch16.addConstraint(Sketcher.Constraint("DistanceY", -1, 1, 3, 2, Q("0.11 in")))
pocket1 = body.newObject("PartDesign::Pocket", "Pocket")
pocket1.Profile = sketch16
pocket1.Length = 15
pocket1.Reversed = True

sketch17 = body.newObject("Sketcher::SketchObject", "Sketch016")
sketch17.AttachmentSupport = (doc.getObject("XY_Plane"), [""])
sketch17.MapMode = "FlatFace"
sketch17.addGeometry(Part.LineSegment(App.Vector(3.556, 1.27, 0), App.Vector(3.556, 0, 0)), False)
sketch17.addGeometry(Part.LineSegment(App.Vector(3.556, 0, 0), App.Vector(2.794, 0, 0)), False)
sketch17.addGeometry(Part.LineSegment(App.Vector(2.794, 0, 0), App.Vector(3.556, 1.27, 0)), False)
sketch17.addGeometry(Part.LineSegment(App.Vector(0, 1.27, 0), App.Vector(0.762, 0, 0)), False)
sketch17.addGeometry(Part.LineSegment(App.Vector(0.762, 0, 0), App.Vector(0, 0, 0)), False)
sketch17.addGeometry(Part.LineSegment(App.Vector(0, 0, 0), App.Vector(0, 1.27, 0)), False)
sketch17.addConstraint(Sketcher.Constraint("Coincident", 0, 2, 1, 1))
sketch17.addConstraint(Sketcher.Constraint("Coincident", 1, 2, 2, 1))
sketch17.addConstraint(Sketcher.Constraint("Coincident", 2, 2, 0, 1))
sketch17.addConstraint(Sketcher.Constraint("Coincident", 3, 2, 4, 1))
sketch17.addConstraint(Sketcher.Constraint("Coincident", 4, 2, 5, 1))
sketch17.addConstraint(Sketcher.Constraint("Coincident", 5, 2, 3, 1))
sketch17.addConstraint(Sketcher.Constraint("Vertical", 0))
sketch17.addConstraint(Sketcher.Constraint("Horizontal", 1))
sketch17.addConstraint(Sketcher.Constraint("Horizontal", 4))
sketch17.addConstraint(Sketcher.Constraint("Vertical", 5))
sketch17.addConstraint(Sketcher.Constraint("Coincident", 4, 2, -1, 1))
sketch17.addConstraint(Sketcher.Constraint("PointOnObject", 0, 2, -1))
sketch17.addConstraint(Sketcher.Constraint("Horizontal", 2, 2, 5, 2))
sketch17.addConstraint(Sketcher.Constraint("Equal", 1, 4))
sketch17.addConstraint(Sketcher.Constraint("DistanceX", 1, 2, 1, 1, Q("0.03 in")))
sketch17.addConstraint(Sketcher.Constraint("DistanceY", 0, 2, 0, 1, Q("0.05 in")))
sketch17.addConstraint(Sketcher.Constraint("DistanceX", -1, 1, 0, 2, Q("0.14 in")))
pocket2 = body.newObject("PartDesign::Pocket", "Pocket001")
pocket2.Profile = sketch17
pocket2.Length = 15
pocket2.Reversed = True
doc.recompute()

fillet = body.newObject("PartDesign::Fillet", "Fillet")
fillet.Base = (pocket2, edges_at(pocket2, [
    (1.778, 34.29, 0),
    (0, 34.29, 1.397),
    (1.778, 34.29, 2.794),
    (3.556, 34.29, 1.397),
]))
fillet.Radius = Q("0.05 in")

sketch18 = body.newObject("Sketcher::SketchObject", "Sketch017")
sketch18.AttachmentSupport = (doc.getObject("XY_Plane"), [""])
sketch18.MapMode = "FlatFace"
sketch18.AttachmentOffset = App.Placement(App.Vector(0, 0, -31.97225), App.Rotation())
sketch18.addGeometry(Part.Circle(App.Vector(1.778, 117.9322, 0), App.Vector(0, 0, 1), 2.54), False)
sketch18.addGeometry(Part.Circle(App.Vector(1.778, 117.9322, 0), App.Vector(0, 0, 1), 0.127), False)
sketch18.addConstraint(Sketcher.Constraint("Coincident", 1, 3, 0, 3))
sketch18.addConstraint(Sketcher.Constraint("Diameter", 0, Q("0.2 in")))
sketch18.addConstraint(Sketcher.Constraint("Diameter", 1, Q("0.01 in")))
sketch18.addConstraint(Sketcher.Constraint("DistanceX", -1, 1, 0, 3, Q("0.07 in")))
sketch18.addConstraint(Sketcher.Constraint("DistanceY", -1, 1, 0, 3, Q("4.643 in")))
pocket3 = body.newObject("PartDesign::Pocket", "Pocket002")
pocket3.Profile = sketch18
pocket3.Length = Q("0.15 in")
pocket3.Reversed = True

sketch19 = body.newObject("Sketcher::SketchObject", "Sketch018")
sketch19.AttachmentSupport = (doc.getObject("XY_Plane"), [""])
sketch19.MapMode = "FlatFace"
sketch19.AttachmentOffset = App.Placement(App.Vector(0, 0, -31.97225), App.Rotation())
sketch19.addGeometry(Part.Circle(App.Vector(1.778, 117.9322, 0), App.Vector(0, 0, 1), 0.127), False)
sketch19.addConstraint(Sketcher.Constraint("Diameter", 0, Q("0.01 in")))
sketch19.addConstraint(Sketcher.Constraint("DistanceX", -1, 1, 0, 3, Q("0.07 in")))
sketch19.addConstraint(Sketcher.Constraint("DistanceY", -1, 1, 0, 3, Q("4.643 in")))
pocket4 = body.newObject("PartDesign::Pocket", "Pocket003")
pocket4.Profile = sketch19
pocket4.Length = Q("0.5 in")
pocket4.Reversed = True

sketch20 = body.newObject("Sketcher::SketchObject", "Sketch019")
sketch20.AttachmentSupport = (doc.getObject("XY_Plane"), [""])
sketch20.MapMode = "FlatFace"
sketch20.AttachmentOffset = App.Placement(App.Vector(0, 0, -0.7 * 25.4), App.Rotation())
sketch20.addGeometry(Part.LineSegment(App.Vector(-0.495028, 121.8692, 0), App.Vector(-1.631542, 119.9007, 0)), False)
sketch20.addGeometry(Part.ArcOfCircle(Part.Circle(App.Vector(1.778, 117.9322, 0), App.Vector(0, 0, 1), 3.937), math.radians(90), math.radians(150.000004)), False)
sketch20.addGeometry(Part.LineSegment(App.Vector(1.778, 121.8692, 0), App.Vector(-0.495028, 121.8692, 0)), False)
sketch20.addGeometry(Part.LineSegment(App.Vector(4.051028, 121.8692, 0), App.Vector(1.778, 121.8692, 0)), False)
sketch20.addGeometry(Part.ArcOfCircle(Part.Circle(App.Vector(1.778, 117.9322, 0), App.Vector(0, 0, 1), 3.937), math.radians(30), math.radians(90)), False)
sketch20.addGeometry(Part.LineSegment(App.Vector(5.187542, 119.9007, 0), App.Vector(4.051028, 121.8692, 0)), False)
sketch20.addGeometry(Part.ArcOfCircle(Part.Circle(App.Vector(1.778, 117.9322, 0), App.Vector(0, 0, 1), 3.937), math.radians(-150.000001), math.radians(-90)), False)
sketch20.addGeometry(Part.LineSegment(App.Vector(-1.631542, 115.9637, 0), App.Vector(-0.495028, 113.9952, 0)), False)
sketch20.addGeometry(Part.LineSegment(App.Vector(-0.495028, 113.9952, 0), App.Vector(1.778, 113.9952, 0)), False)
sketch20.addGeometry(Part.LineSegment(App.Vector(-1.631542, 119.9007, 0), App.Vector(-2.768056, 117.9322, 0)), False)
sketch20.addGeometry(Part.LineSegment(App.Vector(-2.768056, 117.9322, 0), App.Vector(-1.631542, 115.9637, 0)), False)
sketch20.addGeometry(Part.ArcOfCircle(Part.Circle(App.Vector(1.778, 117.9322, 0), App.Vector(0, 0, 1), 3.937), math.radians(150.000004), math.radians(209.999999)), False)
sketch20.addGeometry(Part.ArcOfCircle(Part.Circle(App.Vector(1.778, 117.9322, 0), App.Vector(0, 0, 1), 3.937), math.radians(-90), math.radians(-30.000001)), False)
sketch20.addGeometry(Part.LineSegment(App.Vector(1.778, 113.9952, 0), App.Vector(4.051028, 113.9952, 0)), False)
sketch20.addGeometry(Part.LineSegment(App.Vector(4.051028, 113.9952, 0), App.Vector(5.187542, 115.9637, 0)), False)
sketch20.addGeometry(Part.ArcOfCircle(Part.Circle(App.Vector(1.778, 117.9322, 0), App.Vector(0, 0, 1), 3.937), math.radians(-30.000001), math.radians(0)), False)
sketch20.addGeometry(Part.LineSegment(App.Vector(5.187542, 115.9637, 0), App.Vector(6.324056, 117.9322, 0)), False)
sketch20.addGeometry(Part.LineSegment(App.Vector(6.324056, 117.9322, 0), App.Vector(5.187542, 119.9007, 0)), False)
sketch20.addGeometry(Part.ArcOfCircle(Part.Circle(App.Vector(1.778, 117.9322, 0), App.Vector(0, 0, 1), 3.937), math.radians(0), math.radians(30)), False)
sketch20.addConstraint(Sketcher.Constraint("Tangent", 0, 2, 1, 2))
sketch20.addConstraint(Sketcher.Constraint("Tangent", 1, 1, 2, 1))
sketch20.addConstraint(Sketcher.Constraint("Coincident", 2, 2, 0, 1))
sketch20.addConstraint(Sketcher.Constraint("Tangent", 3, 2, 4, 2))
sketch20.addConstraint(Sketcher.Constraint("Tangent", 4, 1, 5, 1))
sketch20.addConstraint(Sketcher.Constraint("Coincident", 5, 2, 3, 1))
sketch20.addConstraint(Sketcher.Constraint("Tangent", 6, 1, 7, 1))
sketch20.addConstraint(Sketcher.Constraint("Coincident", 7, 2, 8, 1))
sketch20.addConstraint(Sketcher.Constraint("Tangent", 8, 2, 6, 2))
sketch20.addConstraint(Sketcher.Constraint("Coincident", 9, 2, 10, 1))
sketch20.addConstraint(Sketcher.Constraint("Tangent", 10, 2, 11, 2))
sketch20.addConstraint(Sketcher.Constraint("Tangent", 11, 1, 9, 1))
sketch20.addConstraint(Sketcher.Constraint("Tangent", 12, 1, 13, 1))
sketch20.addConstraint(Sketcher.Constraint("Coincident", 13, 2, 14, 1))
sketch20.addConstraint(Sketcher.Constraint("Tangent", 14, 2, 12, 2))
sketch20.addConstraint(Sketcher.Constraint("Tangent", 15, 1, 16, 1))
sketch20.addConstraint(Sketcher.Constraint("Coincident", 16, 2, 17, 1))
sketch20.addConstraint(Sketcher.Constraint("Tangent", 17, 2, 18, 2))
sketch20.addConstraint(Sketcher.Constraint("Tangent", 18, 1, 15, 2))
sketch20.addConstraint(Sketcher.Constraint("Horizontal", 2))
sketch20.addConstraint(Sketcher.Constraint("Horizontal", 3))
sketch20.addConstraint(Sketcher.Constraint("Horizontal", 8))
sketch20.addConstraint(Sketcher.Constraint("Horizontal", 13))
sketch20.addConstraint(Sketcher.Constraint("Coincident", 4, 3, 1, 3))
sketch20.addConstraint(Sketcher.Constraint("Coincident", 6, 3, 1, 3))
sketch20.addConstraint(Sketcher.Constraint("Coincident", 11, 3, 1, 3))
sketch20.addConstraint(Sketcher.Constraint("Coincident", 12, 3, 1, 3))
sketch20.addConstraint(Sketcher.Constraint("Coincident", 15, 3, 1, 3))
sketch20.addConstraint(Sketcher.Constraint("Coincident", 10, 2, 6, 1))
sketch20.addConstraint(Sketcher.Constraint("Coincident", 11, 1, 0, 2))
sketch20.addConstraint(Sketcher.Constraint("Coincident", 15, 1, 14, 2))
sketch20.addConstraint(Sketcher.Constraint("Coincident", 17, 2, 4, 1))
sketch20.addConstraint(Sketcher.Constraint("Equal", 1, 4))
sketch20.addConstraint(Sketcher.Constraint("Equal", 11, 12))
sketch20.addConstraint(Sketcher.Constraint("Parallel", 5, 7))
sketch20.addConstraint(Sketcher.Constraint("Parallel", 9, 14))
sketch20.addConstraint(Sketcher.Constraint("Horizontal", 0, 2, 4, 1))
sketch20.addConstraint(Sketcher.Constraint("Horizontal", 16, 2, 18, 1))
sketch20.addConstraint(Sketcher.Constraint("Equal", 7, 9))
sketch20.addConstraint(Sketcher.Constraint("Radius", 1, Q("0.155 in")))
sketch20.addConstraint(Sketcher.Constraint("DistanceX", -1, 1, 1, 3, Q("0.07 in")))
sketch20.addConstraint(Sketcher.Constraint("DistanceY", -1, 1, 1, 3, Q("4.643 in")))
pocket5 = body.newObject("PartDesign::Pocket", "Pocket004")
pocket5.Profile = sketch20
pocket5.Length = Q("0.2 in")

doc.recompute()
